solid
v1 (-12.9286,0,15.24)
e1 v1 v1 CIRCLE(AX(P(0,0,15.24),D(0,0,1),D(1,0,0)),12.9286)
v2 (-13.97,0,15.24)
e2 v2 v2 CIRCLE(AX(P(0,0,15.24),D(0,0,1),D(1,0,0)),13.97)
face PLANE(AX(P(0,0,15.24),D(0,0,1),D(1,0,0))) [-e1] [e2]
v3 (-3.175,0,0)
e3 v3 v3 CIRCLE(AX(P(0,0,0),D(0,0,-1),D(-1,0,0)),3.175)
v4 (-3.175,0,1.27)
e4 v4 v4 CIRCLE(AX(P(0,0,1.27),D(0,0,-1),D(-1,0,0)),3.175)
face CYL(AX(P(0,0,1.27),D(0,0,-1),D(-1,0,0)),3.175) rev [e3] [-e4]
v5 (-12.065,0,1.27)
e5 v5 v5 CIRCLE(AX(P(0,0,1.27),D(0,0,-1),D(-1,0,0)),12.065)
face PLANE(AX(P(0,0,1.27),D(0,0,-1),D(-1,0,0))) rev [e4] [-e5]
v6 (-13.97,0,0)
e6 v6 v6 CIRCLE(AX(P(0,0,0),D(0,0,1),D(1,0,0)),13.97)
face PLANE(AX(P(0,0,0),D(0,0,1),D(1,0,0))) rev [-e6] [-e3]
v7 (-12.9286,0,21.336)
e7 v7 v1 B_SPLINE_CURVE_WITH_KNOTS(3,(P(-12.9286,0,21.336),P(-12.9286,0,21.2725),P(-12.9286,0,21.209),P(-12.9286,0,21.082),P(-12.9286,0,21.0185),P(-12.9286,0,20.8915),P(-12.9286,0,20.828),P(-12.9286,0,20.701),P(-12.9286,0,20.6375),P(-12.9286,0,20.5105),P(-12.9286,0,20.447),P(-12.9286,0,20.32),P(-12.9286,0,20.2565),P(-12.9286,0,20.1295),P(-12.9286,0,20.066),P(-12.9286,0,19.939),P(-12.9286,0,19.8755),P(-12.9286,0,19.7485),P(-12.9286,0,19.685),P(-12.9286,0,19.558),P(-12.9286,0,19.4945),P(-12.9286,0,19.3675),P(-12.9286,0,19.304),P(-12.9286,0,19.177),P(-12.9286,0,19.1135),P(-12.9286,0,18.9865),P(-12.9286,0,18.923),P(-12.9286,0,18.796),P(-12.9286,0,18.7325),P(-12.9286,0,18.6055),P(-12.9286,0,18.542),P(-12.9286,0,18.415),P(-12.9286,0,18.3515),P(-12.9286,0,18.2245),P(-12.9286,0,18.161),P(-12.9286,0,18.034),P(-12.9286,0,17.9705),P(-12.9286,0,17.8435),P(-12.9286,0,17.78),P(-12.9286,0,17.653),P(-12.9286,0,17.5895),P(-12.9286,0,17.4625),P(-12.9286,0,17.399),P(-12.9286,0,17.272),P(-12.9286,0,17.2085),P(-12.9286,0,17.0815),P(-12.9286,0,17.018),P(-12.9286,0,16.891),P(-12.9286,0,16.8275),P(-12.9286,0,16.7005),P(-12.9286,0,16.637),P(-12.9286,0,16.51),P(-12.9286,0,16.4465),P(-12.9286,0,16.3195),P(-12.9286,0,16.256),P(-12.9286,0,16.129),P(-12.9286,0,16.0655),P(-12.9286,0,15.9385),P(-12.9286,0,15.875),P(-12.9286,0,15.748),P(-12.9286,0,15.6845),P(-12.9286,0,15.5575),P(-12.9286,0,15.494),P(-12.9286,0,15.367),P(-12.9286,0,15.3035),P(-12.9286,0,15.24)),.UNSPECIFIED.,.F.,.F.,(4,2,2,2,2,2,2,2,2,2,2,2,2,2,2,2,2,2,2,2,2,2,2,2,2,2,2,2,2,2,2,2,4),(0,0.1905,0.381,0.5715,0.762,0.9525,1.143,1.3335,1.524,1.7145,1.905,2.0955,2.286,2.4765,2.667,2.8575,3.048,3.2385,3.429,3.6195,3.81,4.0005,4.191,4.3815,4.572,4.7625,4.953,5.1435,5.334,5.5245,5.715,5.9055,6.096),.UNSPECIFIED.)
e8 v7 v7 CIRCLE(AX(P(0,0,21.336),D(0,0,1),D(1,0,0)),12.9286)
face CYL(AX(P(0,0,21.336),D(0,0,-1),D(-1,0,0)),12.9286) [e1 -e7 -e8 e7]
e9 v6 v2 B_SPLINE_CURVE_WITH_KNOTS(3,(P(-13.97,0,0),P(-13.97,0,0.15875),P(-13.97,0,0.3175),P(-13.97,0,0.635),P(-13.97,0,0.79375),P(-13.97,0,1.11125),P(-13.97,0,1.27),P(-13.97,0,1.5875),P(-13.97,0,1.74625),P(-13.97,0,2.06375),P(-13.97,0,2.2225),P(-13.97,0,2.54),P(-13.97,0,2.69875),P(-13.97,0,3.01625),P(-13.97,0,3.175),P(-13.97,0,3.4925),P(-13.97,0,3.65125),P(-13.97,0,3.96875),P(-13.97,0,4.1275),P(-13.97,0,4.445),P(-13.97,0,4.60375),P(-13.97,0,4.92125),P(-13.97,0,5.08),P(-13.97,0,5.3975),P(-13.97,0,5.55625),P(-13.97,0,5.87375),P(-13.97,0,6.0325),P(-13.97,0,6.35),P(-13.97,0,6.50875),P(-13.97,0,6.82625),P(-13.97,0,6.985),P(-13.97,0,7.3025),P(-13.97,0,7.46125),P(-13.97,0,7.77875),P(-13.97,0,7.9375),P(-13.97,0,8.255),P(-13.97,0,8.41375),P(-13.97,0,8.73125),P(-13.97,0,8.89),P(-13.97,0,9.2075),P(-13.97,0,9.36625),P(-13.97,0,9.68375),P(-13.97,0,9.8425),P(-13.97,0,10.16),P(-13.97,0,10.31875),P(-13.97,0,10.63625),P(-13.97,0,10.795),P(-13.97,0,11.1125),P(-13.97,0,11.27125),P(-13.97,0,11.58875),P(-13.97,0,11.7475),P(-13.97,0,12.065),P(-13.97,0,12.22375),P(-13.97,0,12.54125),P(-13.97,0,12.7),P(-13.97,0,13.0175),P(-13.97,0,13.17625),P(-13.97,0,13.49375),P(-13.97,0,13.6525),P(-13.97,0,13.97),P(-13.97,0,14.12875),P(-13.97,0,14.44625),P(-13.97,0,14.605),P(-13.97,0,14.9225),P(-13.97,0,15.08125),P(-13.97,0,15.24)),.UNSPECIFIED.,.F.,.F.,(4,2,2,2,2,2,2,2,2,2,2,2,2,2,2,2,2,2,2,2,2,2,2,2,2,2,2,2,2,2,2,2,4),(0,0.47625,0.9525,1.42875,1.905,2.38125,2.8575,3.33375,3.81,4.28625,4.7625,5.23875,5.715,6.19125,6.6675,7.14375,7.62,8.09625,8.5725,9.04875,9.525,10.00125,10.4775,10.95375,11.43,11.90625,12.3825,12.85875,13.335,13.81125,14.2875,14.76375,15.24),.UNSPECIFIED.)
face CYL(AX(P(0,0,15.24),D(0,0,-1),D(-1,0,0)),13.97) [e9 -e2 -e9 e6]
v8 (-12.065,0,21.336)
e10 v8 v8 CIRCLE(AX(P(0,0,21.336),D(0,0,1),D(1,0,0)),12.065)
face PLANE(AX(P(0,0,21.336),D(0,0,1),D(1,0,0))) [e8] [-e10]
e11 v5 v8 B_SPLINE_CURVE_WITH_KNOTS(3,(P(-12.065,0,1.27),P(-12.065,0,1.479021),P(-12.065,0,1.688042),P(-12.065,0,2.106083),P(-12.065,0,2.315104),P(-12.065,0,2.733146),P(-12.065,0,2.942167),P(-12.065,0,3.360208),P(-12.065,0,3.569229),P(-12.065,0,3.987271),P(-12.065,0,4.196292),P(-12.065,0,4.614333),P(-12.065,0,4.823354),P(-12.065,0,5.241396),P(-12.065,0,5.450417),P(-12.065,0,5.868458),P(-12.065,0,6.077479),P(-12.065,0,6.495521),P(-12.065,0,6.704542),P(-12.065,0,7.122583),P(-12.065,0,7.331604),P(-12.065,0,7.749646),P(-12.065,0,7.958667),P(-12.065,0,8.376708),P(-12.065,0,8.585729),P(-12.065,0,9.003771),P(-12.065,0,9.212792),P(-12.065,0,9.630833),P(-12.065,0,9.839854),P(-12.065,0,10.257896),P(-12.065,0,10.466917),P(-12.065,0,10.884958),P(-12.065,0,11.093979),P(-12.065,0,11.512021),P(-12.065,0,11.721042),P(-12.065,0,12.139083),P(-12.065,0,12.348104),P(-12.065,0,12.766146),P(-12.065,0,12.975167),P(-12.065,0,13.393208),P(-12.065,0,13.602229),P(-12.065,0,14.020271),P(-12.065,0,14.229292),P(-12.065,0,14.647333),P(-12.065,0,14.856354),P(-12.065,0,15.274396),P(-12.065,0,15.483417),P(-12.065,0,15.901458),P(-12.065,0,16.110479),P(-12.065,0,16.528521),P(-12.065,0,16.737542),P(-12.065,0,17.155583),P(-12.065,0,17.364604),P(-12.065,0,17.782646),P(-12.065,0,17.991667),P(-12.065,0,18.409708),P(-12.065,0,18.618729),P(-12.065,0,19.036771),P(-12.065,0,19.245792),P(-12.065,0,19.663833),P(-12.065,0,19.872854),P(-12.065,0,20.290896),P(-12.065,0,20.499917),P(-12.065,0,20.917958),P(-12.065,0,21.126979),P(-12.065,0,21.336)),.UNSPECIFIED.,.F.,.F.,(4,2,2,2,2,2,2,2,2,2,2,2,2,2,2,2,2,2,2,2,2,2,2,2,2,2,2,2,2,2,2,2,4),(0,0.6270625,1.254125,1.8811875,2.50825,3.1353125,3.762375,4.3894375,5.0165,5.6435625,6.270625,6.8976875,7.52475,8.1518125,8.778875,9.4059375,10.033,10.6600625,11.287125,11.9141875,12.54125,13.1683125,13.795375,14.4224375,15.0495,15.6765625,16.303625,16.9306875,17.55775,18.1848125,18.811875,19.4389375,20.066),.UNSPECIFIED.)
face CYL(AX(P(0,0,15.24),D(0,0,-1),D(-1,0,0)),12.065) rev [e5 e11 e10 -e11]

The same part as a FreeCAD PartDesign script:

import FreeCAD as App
import Part
import Sketcher

V = App.Vector
Q = App.Units.Quantity

doc = App.newDocument("Part")
body = doc.addObject("PartDesign::Body", "Body")

sketch1 = doc.addObject("Sketcher::SketchObject", "Sketch")
body.addObject(sketch1)
sketch1.AttachmentSupport = (doc.XY_Plane, [""])
sketch1.MapMode = "FlatFace"
sketch1.addGeometry([
    Part.Circle(V(0, 0, 0), V(0, 0, 1), 13.97),
    Part.Circle(V(0, 0, 0), V(0, 0, 1), 12.065),
], False)
sketch1.addConstraint([
    Sketcher.Constraint("Coincident", 0, 3, -1, 1),
    Sketcher.Constraint("Coincident", 1, 3, -1, 1),
    Sketcher.Constraint("Diameter", 0, Q("1.1 in")),
    Sketcher.Constraint("Diameter", 1, Q("0.95 in")),
])
pad1 = doc.addObject("PartDesign::Pad", "Pad")
body.addObject(pad1)
pad1.Profile = sketch1
pad1.Length = Q("0.6 in")

sketch2 = doc.addObject("Sketcher::SketchObject", "Sketch001")
body.addObject(sketch2)
sketch2.AttachmentSupport = (doc.XY_Plane, [""])
sketch2.MapMode = "FlatFace"
sketch2.addGeometry([
    Part.Circle(V(0, 0, 0), V(0, 0, 1), 13.97),
    Part.Circle(V(0, 0, 0), V(0, 0, 1), 3.175),
], False)
sketch2.addConstraint([
    Sketcher.Constraint("Coincident", 0, 3, -1, 1),
    Sketcher.Constraint("Coincident", 1, 3, -1, 1),
    Sketcher.Constraint("Diameter", 0, Q("1.1 in")),
    Sketcher.Constraint("Diameter", 1, Q("0.25 in")),
])
pad2 = doc.addObject("PartDesign::Pad", "Pad001")
body.addObject(pad2)
pad2.Profile = sketch2
pad2.Length = Q("0.05 in")

sketch3 = doc.addObject("Sketcher::SketchObject", "Sketch002")
body.addObject(sketch3)
sketch3.AttachmentSupport = (doc.XY_Plane, [""])
sketch3.MapMode = "FlatFace"
sketch3.AttachmentOffset = App.Placement(V(0, 0, 0.6 * 25.4), App.Rotation())
sketch3.addGeometry([
    Part.Circle(V(0, 0, 0), V(0, 0, 1), 12.9286),
    Part.Circle(V(0, 0, 0), V(0, 0, 1), 12.065),
], False)
sketch3.addConstraint([
    Sketcher.Constraint("Coincident", 0, 3, -1, 1),
    Sketcher.Constraint("Coincident", 1, 3, -1, 1),
    Sketcher.Constraint("Diameter", 1, Q("0.95 in")),
    Sketcher.Constraint("Diameter", 0, Q("1.018 in")),
])
pad3 = doc.addObject("PartDesign::Pad", "Pad002")
body.addObject(pad3)
pad3.Profile = sketch3
pad3.Length = Q("0.24 in")

doc.recompute()
